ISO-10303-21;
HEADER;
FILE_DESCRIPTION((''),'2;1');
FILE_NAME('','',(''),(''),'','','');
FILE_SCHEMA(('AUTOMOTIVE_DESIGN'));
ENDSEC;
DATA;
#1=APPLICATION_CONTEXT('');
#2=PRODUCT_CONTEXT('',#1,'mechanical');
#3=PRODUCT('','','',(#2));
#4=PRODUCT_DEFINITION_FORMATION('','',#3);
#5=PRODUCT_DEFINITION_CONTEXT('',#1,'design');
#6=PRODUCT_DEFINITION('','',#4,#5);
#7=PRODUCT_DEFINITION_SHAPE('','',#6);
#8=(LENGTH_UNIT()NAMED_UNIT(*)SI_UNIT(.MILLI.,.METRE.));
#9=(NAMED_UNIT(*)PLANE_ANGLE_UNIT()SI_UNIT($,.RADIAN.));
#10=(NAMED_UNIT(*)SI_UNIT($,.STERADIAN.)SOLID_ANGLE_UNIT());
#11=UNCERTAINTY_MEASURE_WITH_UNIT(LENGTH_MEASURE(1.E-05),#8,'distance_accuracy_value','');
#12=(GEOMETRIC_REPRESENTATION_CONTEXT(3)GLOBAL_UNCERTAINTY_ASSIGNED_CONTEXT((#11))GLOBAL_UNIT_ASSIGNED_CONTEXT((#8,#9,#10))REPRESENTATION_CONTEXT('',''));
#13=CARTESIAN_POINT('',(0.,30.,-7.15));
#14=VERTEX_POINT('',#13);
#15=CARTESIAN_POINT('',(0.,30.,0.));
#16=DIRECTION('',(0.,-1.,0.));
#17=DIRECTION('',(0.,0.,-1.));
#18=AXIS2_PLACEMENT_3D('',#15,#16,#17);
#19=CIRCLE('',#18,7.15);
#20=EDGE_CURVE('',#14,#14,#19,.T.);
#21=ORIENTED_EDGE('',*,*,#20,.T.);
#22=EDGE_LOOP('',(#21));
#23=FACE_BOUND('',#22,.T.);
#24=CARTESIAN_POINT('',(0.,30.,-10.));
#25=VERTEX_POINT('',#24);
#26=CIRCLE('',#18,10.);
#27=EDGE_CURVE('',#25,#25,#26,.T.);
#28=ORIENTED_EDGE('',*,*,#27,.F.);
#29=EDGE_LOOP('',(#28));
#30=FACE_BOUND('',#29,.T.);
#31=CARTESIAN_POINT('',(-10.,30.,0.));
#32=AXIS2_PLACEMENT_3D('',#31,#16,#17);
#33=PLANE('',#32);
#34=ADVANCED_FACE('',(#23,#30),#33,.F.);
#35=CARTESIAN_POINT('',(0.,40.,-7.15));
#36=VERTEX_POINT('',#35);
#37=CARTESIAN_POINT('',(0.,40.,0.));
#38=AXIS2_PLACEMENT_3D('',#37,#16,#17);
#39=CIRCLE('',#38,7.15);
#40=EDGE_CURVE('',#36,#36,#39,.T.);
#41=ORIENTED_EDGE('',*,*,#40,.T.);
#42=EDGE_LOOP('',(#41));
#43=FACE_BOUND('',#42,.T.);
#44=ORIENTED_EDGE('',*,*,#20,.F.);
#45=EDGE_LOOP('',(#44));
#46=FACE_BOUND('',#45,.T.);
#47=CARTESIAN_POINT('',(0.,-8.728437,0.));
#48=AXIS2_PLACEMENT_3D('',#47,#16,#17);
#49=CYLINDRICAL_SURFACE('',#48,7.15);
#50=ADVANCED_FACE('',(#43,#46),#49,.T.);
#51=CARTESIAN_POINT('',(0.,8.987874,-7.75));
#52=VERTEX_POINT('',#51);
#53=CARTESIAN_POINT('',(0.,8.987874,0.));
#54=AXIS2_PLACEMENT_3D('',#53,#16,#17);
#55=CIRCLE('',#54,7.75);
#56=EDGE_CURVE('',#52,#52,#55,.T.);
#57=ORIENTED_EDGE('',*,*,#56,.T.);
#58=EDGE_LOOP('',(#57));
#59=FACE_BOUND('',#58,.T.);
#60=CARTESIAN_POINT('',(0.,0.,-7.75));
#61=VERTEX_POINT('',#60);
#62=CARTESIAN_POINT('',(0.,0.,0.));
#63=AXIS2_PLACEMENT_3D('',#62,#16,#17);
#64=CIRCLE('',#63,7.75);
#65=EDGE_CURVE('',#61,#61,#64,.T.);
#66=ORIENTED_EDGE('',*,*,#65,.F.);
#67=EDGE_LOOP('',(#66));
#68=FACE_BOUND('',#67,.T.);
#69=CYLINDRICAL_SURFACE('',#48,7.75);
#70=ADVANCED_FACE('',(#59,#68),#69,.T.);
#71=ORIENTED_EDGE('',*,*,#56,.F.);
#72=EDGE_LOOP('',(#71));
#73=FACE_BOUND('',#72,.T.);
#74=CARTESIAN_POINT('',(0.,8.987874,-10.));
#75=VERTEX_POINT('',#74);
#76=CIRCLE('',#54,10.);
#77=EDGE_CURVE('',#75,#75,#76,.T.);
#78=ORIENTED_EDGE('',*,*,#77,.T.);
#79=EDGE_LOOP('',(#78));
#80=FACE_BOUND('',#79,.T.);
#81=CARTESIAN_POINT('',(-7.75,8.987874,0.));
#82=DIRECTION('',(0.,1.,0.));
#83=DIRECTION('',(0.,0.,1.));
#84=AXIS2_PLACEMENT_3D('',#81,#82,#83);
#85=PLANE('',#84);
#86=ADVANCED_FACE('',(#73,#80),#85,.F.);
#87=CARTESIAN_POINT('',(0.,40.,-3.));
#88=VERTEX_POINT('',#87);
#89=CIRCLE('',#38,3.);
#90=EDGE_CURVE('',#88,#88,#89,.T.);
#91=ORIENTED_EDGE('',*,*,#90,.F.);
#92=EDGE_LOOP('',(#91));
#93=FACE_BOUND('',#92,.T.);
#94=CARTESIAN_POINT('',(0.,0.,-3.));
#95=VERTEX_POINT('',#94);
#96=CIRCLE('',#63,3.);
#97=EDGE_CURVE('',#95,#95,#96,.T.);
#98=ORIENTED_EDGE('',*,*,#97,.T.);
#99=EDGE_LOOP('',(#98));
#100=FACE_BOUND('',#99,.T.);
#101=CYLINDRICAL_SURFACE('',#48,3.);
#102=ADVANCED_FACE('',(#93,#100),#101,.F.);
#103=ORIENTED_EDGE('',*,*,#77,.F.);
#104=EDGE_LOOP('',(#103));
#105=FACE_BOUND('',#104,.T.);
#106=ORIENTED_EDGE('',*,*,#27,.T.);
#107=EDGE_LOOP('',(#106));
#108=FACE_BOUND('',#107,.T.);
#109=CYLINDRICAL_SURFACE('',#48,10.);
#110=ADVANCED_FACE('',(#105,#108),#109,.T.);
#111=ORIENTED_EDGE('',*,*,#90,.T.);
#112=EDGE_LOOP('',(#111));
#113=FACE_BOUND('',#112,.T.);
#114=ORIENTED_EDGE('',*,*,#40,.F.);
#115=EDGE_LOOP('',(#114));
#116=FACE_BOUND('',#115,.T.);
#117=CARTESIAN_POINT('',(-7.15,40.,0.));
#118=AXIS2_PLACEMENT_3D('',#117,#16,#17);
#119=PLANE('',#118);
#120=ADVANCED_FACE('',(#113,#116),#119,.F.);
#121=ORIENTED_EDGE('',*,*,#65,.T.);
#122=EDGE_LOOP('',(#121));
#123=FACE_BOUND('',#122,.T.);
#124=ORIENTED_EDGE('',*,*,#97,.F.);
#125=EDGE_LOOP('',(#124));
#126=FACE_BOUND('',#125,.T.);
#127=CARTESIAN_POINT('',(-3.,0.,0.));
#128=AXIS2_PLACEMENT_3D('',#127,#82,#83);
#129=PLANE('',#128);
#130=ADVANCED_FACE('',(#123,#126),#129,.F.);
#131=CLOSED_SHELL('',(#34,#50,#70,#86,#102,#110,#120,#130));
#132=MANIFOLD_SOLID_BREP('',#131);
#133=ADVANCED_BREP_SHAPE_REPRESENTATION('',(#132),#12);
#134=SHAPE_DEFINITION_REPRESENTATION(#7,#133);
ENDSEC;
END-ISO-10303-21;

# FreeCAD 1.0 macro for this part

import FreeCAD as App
import Part
import Sketcher
from FreeCAD import Vector

doc = App.newDocument("Part")
body = doc.addObject("PartDesign::Body", "Body")

sketch1 = doc.addObject("Sketcher::SketchObject", "Sketch")
body.addObject(sketch1)
sketch1.AttachmentSupport = (doc.XY_Plane, [""])
sketch1.MapMode = "FlatFace"
sketch1.addGeometry([
    Part.LineSegment(Vector(-7.8, 0, 0), Vector(-3, 0, 0)),
    Part.LineSegment(Vector(-3, 0, 0), Vector(-3, 40, 0)),
    Part.LineSegment(Vector(-3, 40, 0), Vector(-7.2, 40, 0)),
    Part.LineSegment(Vector(-7.2, 40, 0), Vector(-7.2, 30, 0)),
    Part.LineSegment(Vector(-7.2, 30, 0), Vector(-10, 30, 0)),
    Part.LineSegment(Vector(-10, 30, 0), Vector(-10, 9, 0)),
    Part.LineSegment(Vector(-10, 9, 0), Vector(-7.8, 9, 0)),
    Part.LineSegment(Vector(-7.8, 9, 0), Vector(-7.8, 0, 0)),
], False)
sketch1.addConstraint([
    Sketcher.Constraint("Coincident", 0, 2, 1, 1),
    Sketcher.Constraint("Coincident", 1, 2, 2, 1),
    Sketcher.Constraint("Coincident", 2, 2, 3, 1),
    Sketcher.Constraint("Coincident", 3, 2, 4, 1),
    Sketcher.Constraint("Coincident", 4, 2, 5, 1),
    Sketcher.Constraint("Coincident", 5, 2, 6, 1),
    Sketcher.Constraint("Coincident", 6, 2, 7, 1),
    Sketcher.Constraint("Coincident", 7, 2, 0, 1),
    Sketcher.Constraint("Horizontal", 0),
    Sketcher.Constraint("Vertical", 1),
    Sketcher.Constraint("Horizontal", 2),
    Sketcher.Constraint("Vertical", 3),
    Sketcher.Constraint("Horizontal", 4),
    Sketcher.Constraint("Vertical", 5),
    Sketcher.Constraint("Horizontal", 6),
    Sketcher.Constraint("Vertical", 7),
    Sketcher.Constraint("PointOnObject", 0, 2, -1),
    Sketcher.Constraint("DistanceY", 1, 1, 1, 2, 40.0),
    Sketcher.Constraint("DistanceY", 3, 2, 3, 1, 10.0),
    Sketcher.Constraint("DistanceX", 0, 2, -1, 1, 3.0),
    Sketcher.Constraint("DistanceX", 4, 2, -1, 1, 10.0),
    Sketcher.Constraint("DistanceX", 0, 1, 0, 2, 4.75),
    Sketcher.Constraint("DistanceX", 2, 2, 2, 1, 4.15),
    Sketcher.Constraint("DistanceY", 5, 2, 5, 1, 21.012126),
])
revolution = doc.addObject("PartDesign::Revolution", "Revolution")
body.addObject(revolution)
revolution.Profile = sketch1
revolution.ReferenceAxis = (sketch1, ["V_Axis"])
revolution.Angle = 360

doc.recompute()
